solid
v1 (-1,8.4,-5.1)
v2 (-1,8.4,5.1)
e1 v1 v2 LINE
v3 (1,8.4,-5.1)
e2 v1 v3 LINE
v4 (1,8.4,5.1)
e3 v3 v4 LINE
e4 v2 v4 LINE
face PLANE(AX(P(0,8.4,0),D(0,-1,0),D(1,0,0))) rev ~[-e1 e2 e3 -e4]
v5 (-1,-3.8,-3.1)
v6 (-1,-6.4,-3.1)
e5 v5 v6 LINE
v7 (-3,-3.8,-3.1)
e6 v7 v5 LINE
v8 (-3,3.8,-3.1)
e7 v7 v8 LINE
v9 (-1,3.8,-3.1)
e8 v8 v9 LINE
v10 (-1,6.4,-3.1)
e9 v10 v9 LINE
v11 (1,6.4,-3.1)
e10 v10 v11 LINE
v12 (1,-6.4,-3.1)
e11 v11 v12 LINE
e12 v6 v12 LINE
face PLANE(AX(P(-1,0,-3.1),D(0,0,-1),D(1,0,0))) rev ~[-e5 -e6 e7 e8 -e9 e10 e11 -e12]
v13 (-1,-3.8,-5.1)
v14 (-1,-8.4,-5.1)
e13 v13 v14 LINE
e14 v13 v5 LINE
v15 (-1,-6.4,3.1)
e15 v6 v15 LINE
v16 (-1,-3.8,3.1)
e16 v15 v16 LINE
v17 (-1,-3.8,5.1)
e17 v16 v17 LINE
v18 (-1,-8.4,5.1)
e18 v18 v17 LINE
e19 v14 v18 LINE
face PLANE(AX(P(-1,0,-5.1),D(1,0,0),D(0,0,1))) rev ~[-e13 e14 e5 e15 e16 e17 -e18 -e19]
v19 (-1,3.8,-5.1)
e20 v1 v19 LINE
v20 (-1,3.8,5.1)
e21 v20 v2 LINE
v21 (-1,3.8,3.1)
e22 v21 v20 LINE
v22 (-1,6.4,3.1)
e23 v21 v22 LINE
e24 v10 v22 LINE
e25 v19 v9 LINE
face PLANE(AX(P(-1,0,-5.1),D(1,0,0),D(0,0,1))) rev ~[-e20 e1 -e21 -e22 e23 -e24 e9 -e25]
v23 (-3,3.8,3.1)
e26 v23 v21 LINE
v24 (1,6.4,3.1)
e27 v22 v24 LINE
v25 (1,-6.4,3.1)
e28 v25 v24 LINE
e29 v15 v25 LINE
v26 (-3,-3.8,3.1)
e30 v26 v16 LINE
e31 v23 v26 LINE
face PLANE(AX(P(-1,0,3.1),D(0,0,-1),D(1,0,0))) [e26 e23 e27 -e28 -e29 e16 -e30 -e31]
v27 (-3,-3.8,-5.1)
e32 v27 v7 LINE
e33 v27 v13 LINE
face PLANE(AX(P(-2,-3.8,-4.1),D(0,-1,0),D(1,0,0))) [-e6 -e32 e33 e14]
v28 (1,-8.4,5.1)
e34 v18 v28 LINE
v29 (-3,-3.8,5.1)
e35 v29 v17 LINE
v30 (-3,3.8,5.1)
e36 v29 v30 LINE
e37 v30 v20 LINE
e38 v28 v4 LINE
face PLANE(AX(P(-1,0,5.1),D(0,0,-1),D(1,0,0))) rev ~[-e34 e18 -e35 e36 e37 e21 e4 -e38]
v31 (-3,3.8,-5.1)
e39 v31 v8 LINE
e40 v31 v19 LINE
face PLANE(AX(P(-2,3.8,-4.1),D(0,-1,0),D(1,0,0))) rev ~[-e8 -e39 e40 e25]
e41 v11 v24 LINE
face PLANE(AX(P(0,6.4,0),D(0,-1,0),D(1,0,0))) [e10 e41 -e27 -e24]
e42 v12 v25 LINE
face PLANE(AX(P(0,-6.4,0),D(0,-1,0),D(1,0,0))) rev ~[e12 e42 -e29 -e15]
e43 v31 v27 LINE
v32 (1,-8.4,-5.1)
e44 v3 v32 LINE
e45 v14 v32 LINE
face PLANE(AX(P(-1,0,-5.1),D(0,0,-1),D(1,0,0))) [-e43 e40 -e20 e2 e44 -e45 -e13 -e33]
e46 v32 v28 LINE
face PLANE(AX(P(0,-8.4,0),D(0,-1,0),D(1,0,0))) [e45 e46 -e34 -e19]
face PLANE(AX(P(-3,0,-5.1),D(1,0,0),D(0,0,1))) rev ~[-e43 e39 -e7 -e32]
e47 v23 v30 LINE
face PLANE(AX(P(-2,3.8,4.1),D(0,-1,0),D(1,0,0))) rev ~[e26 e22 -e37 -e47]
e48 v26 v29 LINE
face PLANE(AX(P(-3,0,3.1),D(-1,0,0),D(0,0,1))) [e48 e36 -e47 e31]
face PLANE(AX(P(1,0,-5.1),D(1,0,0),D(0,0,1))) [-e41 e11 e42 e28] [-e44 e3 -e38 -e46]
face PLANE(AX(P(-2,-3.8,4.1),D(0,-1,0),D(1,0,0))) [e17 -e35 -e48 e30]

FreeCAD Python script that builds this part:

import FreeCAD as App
import Part
import Sketcher
from FreeCAD import Vector
Q = App.Units.Quantity

doc = App.newDocument("Part")
body = doc.addObject("PartDesign::Body", "Body")
body.AllowCompound = True

sketch1 = doc.addObject("Sketcher::SketchObject", "Sketch")
body.addObject(sketch1)
sketch1.AttachmentSupport = (doc.XZ_Plane, [""])
sketch1.MapMode = "FlatFace"
sketch1.addGeometry([
    Part.LineSegment(Vector(-3, 5.1, 0), Vector(-3, 3.1, 0)),
    Part.LineSegment(Vector(-3, 3.1, 0), Vector(-1, 3.1, 0)),
    Part.LineSegment(Vector(-1, 3.1, 0), Vector(-1, 5.1, 0)),
    Part.LineSegment(Vector(-1, 5.1, 0), Vector(-3, 5.1, 0)),
    Part.LineSegment(Vector(-3, -3.1, 0), Vector(-3, -5.1, 0)),
    Part.LineSegment(Vector(-3, -5.1, 0), Vector(-1, -5.1, 0)),
    Part.LineSegment(Vector(-1, -5.1, 0), Vector(-1, -3.1, 0)),
    Part.LineSegment(Vector(-1, -3.1, 0), Vector(-3, -3.1, 0)),
], False)
sketch1.addConstraint([
    Sketcher.Constraint("Coincident", 0, 2, 1, 1),
    Sketcher.Constraint("Coincident", 1, 2, 2, 1),
    Sketcher.Constraint("Coincident", 2, 2, 3, 1),
    Sketcher.Constraint("Coincident", 3, 2, 0, 1),
    Sketcher.Constraint("Coincident", 4, 2, 5, 1),
    Sketcher.Constraint("Coincident", 5, 2, 6, 1),
    Sketcher.Constraint("Coincident", 6, 2, 7, 1),
    Sketcher.Constraint("Coincident", 7, 2, 4, 1),
    Sketcher.Constraint("Vertical", 0),
    Sketcher.Constraint("Horizontal", 1),
    Sketcher.Constraint("Vertical", 2),
    Sketcher.Constraint("Horizontal", 3),
    Sketcher.Constraint("Vertical", 4),
    Sketcher.Constraint("Horizontal", 5),
    Sketcher.Constraint("Vertical", 6),
    Sketcher.Constraint("Horizontal", 7),
    Sketcher.Constraint("Symmetric", 3, 2, 4, 2, -1),
    Sketcher.Constraint("Symmetric", 1, 2, 6, 2, -1),
    Sketcher.Constraint("Equal", 7, 0),
    Sketcher.Constraint("DistanceX", 1, 1, 1, 2, Q("2 mm")),
    Sketcher.Constraint("DistanceX", 0, 2, -1, 1, Q("3 mm")),
    Sketcher.Constraint("DistanceY", -1, 1, 0, 2, Q("3.1 mm")),
])
pad1 = doc.addObject("PartDesign::Pad", "Pad")
body.addObject(pad1)
pad1.Profile = sketch1
pad1.Length = 7.6
pad1.Midplane = True
body2 = doc.addObject("PartDesign::Body", "Body001")

sketch2 = doc.addObject("Sketcher::SketchObject", "Sketch001")
body2.addObject(sketch2)
sketch2.AttachmentSupport = (doc.getObject("XZ_Plane001"), [""])
sketch2.MapMode = "FlatFace"
sketch2.addGeometry([
    Part.LineSegment(Vector(-1, 3.1, 0), Vector(-1, -3.1, 0)),
    Part.LineSegment(Vector(-1, -3.1, 0), Vector(1, -3.1, 0)),
    Part.LineSegment(Vector(1, -3.1, 0), Vector(1, 3.1, 0)),
    Part.LineSegment(Vector(1, 3.1, 0), Vector(-1, 3.1, 0)),
], False)
sketch2.addConstraint([
    Sketcher.Constraint("Coincident", 0, 2, 1, 1),
    Sketcher.Constraint("Coincident", 1, 2, 2, 1),
    Sketcher.Constraint("Coincident", 2, 2, 3, 1),
    Sketcher.Constraint("Coincident", 3, 2, 0, 1),
    Sketcher.Constraint("Vertical", 0),
    Sketcher.Constraint("Horizontal", 1),
    Sketcher.Constraint("Vertical", 2),
    Sketcher.Constraint("Horizontal", 3),
    Sketcher.Constraint("Symmetric", 0, 2, 2, 2, -1, 1),
    Sketcher.Constraint("DistanceX", 1, 1, 1, 2, Q("2 mm")),
    Sketcher.Constraint("DistanceY", 0, 2, 0, 1, Q("6.2 mm")),
])
pad2 = doc.addObject("PartDesign::Pad", "Pad001")
body2.addObject(pad2)
pad2.Profile = sketch2
pad2.Length = 12.8
pad2.Midplane = True
body3 = doc.addObject("PartDesign::Body", "Body002")

sketch3 = doc.addObject("Sketcher::SketchObject", "Sketch002")
body3.addObject(sketch3)
sketch3.AttachmentSupport = (doc.getObject("XZ_Plane002"), [""])
sketch3.MapMode = "FlatFace"
sketch3.addGeometry([
    Part.LineSegment(Vector(-1, 5.1, 0), Vector(-1, -5.1, 0)),
    Part.LineSegment(Vector(-1, -5.1, 0), Vector(1, -5.1, 0)),
    Part.LineSegment(Vector(1, -5.1, 0), Vector(1, 5.1, 0)),
    Part.LineSegment(Vector(1, 5.1, 0), Vector(-1, 5.1, 0)),
], False)
sketch3.addConstraint([
    Sketcher.Constraint("Coincident", 0, 2, 1, 1),
    Sketcher.Constraint("Coincident", 1, 2, 2, 1),
    Sketcher.Constraint("Coincident", 2, 2, 3, 1),
    Sketcher.Constraint("Coincident", 3, 2, 0, 1),
    Sketcher.Constraint("Vertical", 0),
    Sketcher.Constraint("Horizontal", 1),
    Sketcher.Constraint("Vertical", 2),
    Sketcher.Constraint("Horizontal", 3),
    Sketcher.Constraint("Symmetric", 0, 2, 2, 2, -1, 1),
    Sketcher.Constraint("DistanceX", 1, 1, 1, 2, Q("2 mm")),
    Sketcher.Constraint("DistanceY", 0, 2, 0, 1, Q("10.2 mm")),
])
pad3 = doc.addObject("PartDesign::Pad", "Pad002")
body3.addObject(pad3)
pad3.Profile = sketch3
pad3.Length = 16.8
pad3.Midplane = True
doc.recompute()

boolean = doc.addObject("PartDesign::Boolean", "Boolean")
body3.addObject(boolean)
boolean.Type = "Cut"
boolean.addObjects([body2])
doc.recompute()

boolean2 = doc.addObject("PartDesign::Boolean", "Boolean001")
body3.addObject(boolean2)
boolean2.Type = "Fuse"
boolean2.addObjects([body])

doc.recompute()
